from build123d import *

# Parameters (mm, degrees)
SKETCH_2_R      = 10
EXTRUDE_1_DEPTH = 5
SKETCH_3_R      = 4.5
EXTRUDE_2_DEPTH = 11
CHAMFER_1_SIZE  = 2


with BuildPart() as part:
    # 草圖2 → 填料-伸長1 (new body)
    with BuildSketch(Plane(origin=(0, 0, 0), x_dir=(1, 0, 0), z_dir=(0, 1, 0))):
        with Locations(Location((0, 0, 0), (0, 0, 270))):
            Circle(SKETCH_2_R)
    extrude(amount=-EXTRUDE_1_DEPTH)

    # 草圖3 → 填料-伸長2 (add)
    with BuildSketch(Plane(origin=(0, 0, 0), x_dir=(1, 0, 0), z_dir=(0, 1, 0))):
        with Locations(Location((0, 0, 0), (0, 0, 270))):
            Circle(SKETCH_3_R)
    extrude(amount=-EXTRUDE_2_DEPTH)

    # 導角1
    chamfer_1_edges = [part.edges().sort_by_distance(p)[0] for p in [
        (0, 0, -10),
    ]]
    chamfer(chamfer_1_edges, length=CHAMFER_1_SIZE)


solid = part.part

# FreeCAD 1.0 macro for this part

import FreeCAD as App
import Part
import Sketcher

V = App.Vector
Q = App.Units.Quantity


def edges_at(feature, points):
    """Names of the edges that pass closest to the given points."""
    edges = feature.Shape.Edges
    near = lambda p: min(range(len(edges)), key=lambda i: edges[i].distToShape(Part.Vertex(*p))[0])
    return sorted({f"Edge{near(p) + 1}" for p in points})

doc = App.newDocument("Part")
body = doc.addObject("PartDesign::Body", "Body")

# Sketch on XZ plane
sketch1 = body.newObject("Sketcher::SketchObject", "Sketch")
sketch1.AttachmentSupport = (doc.getObject("XZ_Plane"), [""])
sketch1.MapMode = "FlatFace"
sketch1.addGeometry(Part.Circle(V(0, 0, 0), V(0, 0, 1), 10), False)
sketch1.addConstraint(Sketcher.Constraint("Coincident", 0, 3, -1, 1))
sketch1.addConstraint(Sketcher.Constraint("Diameter", 0, Q("20 mm")))
pad1 = body.newObject("PartDesign::Pad", "Pad")
pad1.Profile = sketch1
pad1.Length = 5

# Sketch on XZ plane
sketch2 = body.newObject("Sketcher::SketchObject", "Sketch001")
sketch2.AttachmentSupport = (doc.getObject("XZ_Plane"), [""])
sketch2.MapMode = "FlatFace"
sketch2.addGeometry(Part.Circle(V(0, 0, 0), V(0, 0, 1), 4.5), False)
sketch2.addConstraint(Sketcher.Constraint("Coincident", 0, 3, -1, 1))
sketch2.addConstraint(Sketcher.Constraint("Diameter", 0, Q("9 mm")))
pad2 = body.newObject("PartDesign::Pad", "Pad001")
pad2.Profile = sketch2
pad2.Length = 11
doc.recompute()

chamfer = body.newObject("PartDesign::Chamfer", "Chamfer")
chamfer.Base = (pad2, edges_at(pad2, [(0, 0, -10)]))
chamfer.Size = 2

doc.recompute()
